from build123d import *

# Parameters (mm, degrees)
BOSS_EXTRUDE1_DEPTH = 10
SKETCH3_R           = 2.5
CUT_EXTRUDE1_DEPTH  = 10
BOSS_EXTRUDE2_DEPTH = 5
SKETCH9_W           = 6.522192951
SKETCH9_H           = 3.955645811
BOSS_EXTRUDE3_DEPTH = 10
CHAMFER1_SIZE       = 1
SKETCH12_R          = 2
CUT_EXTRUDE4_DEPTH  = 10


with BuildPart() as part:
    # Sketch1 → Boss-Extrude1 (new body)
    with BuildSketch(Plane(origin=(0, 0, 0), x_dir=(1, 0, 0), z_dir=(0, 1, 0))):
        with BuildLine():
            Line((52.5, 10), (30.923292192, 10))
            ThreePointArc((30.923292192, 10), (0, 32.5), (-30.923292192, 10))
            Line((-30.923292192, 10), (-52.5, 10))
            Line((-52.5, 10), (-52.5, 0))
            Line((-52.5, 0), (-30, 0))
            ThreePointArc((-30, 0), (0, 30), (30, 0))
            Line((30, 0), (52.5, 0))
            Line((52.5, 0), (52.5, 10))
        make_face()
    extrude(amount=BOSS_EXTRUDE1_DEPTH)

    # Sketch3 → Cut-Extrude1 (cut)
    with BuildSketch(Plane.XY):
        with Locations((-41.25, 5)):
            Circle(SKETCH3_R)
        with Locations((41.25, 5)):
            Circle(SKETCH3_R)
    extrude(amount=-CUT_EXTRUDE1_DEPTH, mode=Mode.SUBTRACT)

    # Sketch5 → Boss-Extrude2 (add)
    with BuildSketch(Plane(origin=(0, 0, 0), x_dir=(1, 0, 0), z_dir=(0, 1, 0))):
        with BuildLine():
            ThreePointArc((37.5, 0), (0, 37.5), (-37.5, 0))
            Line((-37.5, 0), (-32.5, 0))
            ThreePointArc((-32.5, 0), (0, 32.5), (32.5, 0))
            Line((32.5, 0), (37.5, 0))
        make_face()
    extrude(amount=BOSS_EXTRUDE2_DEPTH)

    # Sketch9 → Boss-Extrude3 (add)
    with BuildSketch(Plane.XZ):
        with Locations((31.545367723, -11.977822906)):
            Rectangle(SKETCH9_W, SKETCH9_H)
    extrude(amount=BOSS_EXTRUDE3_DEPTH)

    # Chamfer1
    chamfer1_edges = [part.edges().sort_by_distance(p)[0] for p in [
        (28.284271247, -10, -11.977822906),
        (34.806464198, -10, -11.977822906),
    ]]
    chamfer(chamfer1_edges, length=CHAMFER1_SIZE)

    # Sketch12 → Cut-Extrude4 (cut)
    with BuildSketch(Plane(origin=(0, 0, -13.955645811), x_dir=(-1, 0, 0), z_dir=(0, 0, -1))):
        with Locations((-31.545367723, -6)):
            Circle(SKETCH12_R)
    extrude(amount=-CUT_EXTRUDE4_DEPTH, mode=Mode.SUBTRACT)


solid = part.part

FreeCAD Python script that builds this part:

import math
import FreeCAD as App
import Part
import Sketcher

V = App.Vector


def edges_at(feature, points):
    """Names of the edges that pass closest to the given points."""
    edges = feature.Shape.Edges
    near = lambda p: min(range(len(edges)), key=lambda i: edges[i].distToShape(Part.Vertex(*p))[0])
    return sorted({f"Edge{near(p) + 1}" for p in points})


def add_polygon(sketch, points):
    """Adds a closed chain of lines whose ends are joined by coincident constraints."""
    first, n = sketch.GeometryCount, len(points)
    for a, b in zip(points, points[1:] + points[:1]):
        sketch.addGeometry(Part.LineSegment(App.Vector(*a, 0), App.Vector(*b, 0)), False)
    for i in range(n):
        sketch.addConstraint(Sketcher.Constraint("Coincident", first + i, 2, first + (i + 1) % n, 1))

doc = App.newDocument("Part")
body = doc.addObject("PartDesign::Body", "Body")

# Sketch on XZ plane
sketch1 = body.newObject("Sketcher::SketchObject", "Sketch")
sketch1.AttachmentSupport = (doc.getObject("XZ_Plane"), [""])
sketch1.MapMode = "FlatFace"
sketch1.addGeometry(Part.LineSegment(V(52, -10, 0), V(31, -10, 0)), False)
sketch1.addGeometry(Part.ArcOfCircle(Part.Circle(V(0, 0, 0), V(0, 0, 1), 32), math.radians(-162), math.radians(-18)), False)
sketch1.addGeometry(Part.LineSegment(V(-31, -10, 0), V(-52, -10, 0)), False)
sketch1.addGeometry(Part.LineSegment(V(-52, -10, 0), V(-52, 0, 0)), False)
sketch1.addGeometry(Part.LineSegment(V(-52, 0, 0), V(-30, 0, 0)), False)
sketch1.addGeometry(Part.ArcOfCircle(Part.Circle(V(0, 0, 0), V(0, 0, 1), 30), math.radians(180), math.radians(360)), False)
sketch1.addGeometry(Part.LineSegment(V(30, 0, 0), V(52, 0, 0)), False)
sketch1.addGeometry(Part.LineSegment(V(52, 0, 0), V(52, -10, 0)), False)
sketch1.addConstraint(Sketcher.Constraint("Coincident", 0, 2, 1, 2))
sketch1.addConstraint(Sketcher.Constraint("Coincident", 1, 1, 2, 1))
sketch1.addConstraint(Sketcher.Constraint("Coincident", 2, 2, 3, 1))
sketch1.addConstraint(Sketcher.Constraint("Coincident", 3, 2, 4, 1))
sketch1.addConstraint(Sketcher.Constraint("Coincident", 4, 2, 5, 1))
sketch1.addConstraint(Sketcher.Constraint("Coincident", 5, 2, 6, 1))
sketch1.addConstraint(Sketcher.Constraint("Coincident", 6, 2, 7, 1))
sketch1.addConstraint(Sketcher.Constraint("Coincident", 7, 2, 0, 1))
sketch1.addConstraint(Sketcher.Constraint("Horizontal", 0))
sketch1.addConstraint(Sketcher.Constraint("Horizontal", 2))
sketch1.addConstraint(Sketcher.Constraint("Vertical", 3))
sketch1.addConstraint(Sketcher.Constraint("Horizontal", 4))
sketch1.addConstraint(Sketcher.Constraint("Horizontal", 6))
sketch1.addConstraint(Sketcher.Constraint("Vertical", 7))
sketch1.addConstraint(Sketcher.Constraint("Coincident", 1, 3, -1, 1))
sketch1.addConstraint(Sketcher.Constraint("Coincident", 5, 3, -1, 1))
sketch1.addConstraint(Sketcher.Constraint("Symmetric", 3, 2, 6, 2, -1, 1))
sketch1.addConstraint(Sketcher.Constraint("PointOnObject", 3, 2, -1))
sketch1.addConstraint(Sketcher.Constraint("Horizontal", 0, 2, 1, 1))
sketch1.addConstraint(Sketcher.Constraint("Radius", 5, 30.0))
sketch1.addConstraint(Sketcher.Constraint("Radius", 1, 32.5))
sketch1.addConstraint(Sketcher.Constraint("DistanceY", 3, 1, 3, 2, 10.0))
sketch1.addConstraint(Sketcher.Constraint("DistanceX", 4, 1, 4, 2, 22.5))
pad1 = body.newObject("PartDesign::Pad", "Pad")
pad1.Profile = sketch1
pad1.Length = 10
pad1.Reversed = True

# Sketch on XY plane
sketch2 = body.newObject("Sketcher::SketchObject", "Sketch001")
sketch2.AttachmentSupport = (doc.getObject("XY_Plane"), [""])
sketch2.MapMode = "FlatFace"
sketch2.addGeometry(Part.Circle(V(-41.2, 5, 0), V(0, 0, 1), 2.5), False)
sketch2.addGeometry(Part.Circle(V(41.2, 5, 0), V(0, 0, 1), 2.5), False)
sketch2.addConstraint(Sketcher.Constraint("Equal", 0, 1))
sketch2.addConstraint(Sketcher.Constraint("Symmetric", 0, 3, 1, 3, -2))
sketch2.addConstraint(Sketcher.Constraint("Diameter", 0, 5.0))
sketch2.addConstraint(Sketcher.Constraint("DistanceY", -1, 1, 0, 3, 5.0))
sketch2.addConstraint(Sketcher.Constraint("DistanceX", 0, 3, 1, 3, 82.5))
pocket1 = body.newObject("PartDesign::Pocket", "Pocket")
pocket1.Profile = sketch2
pocket1.Length = 10

# Sketch on XZ plane
sketch3 = body.newObject("Sketcher::SketchObject", "Sketch002")
sketch3.AttachmentSupport = (doc.getObject("XZ_Plane"), [""])
sketch3.MapMode = "FlatFace"
sketch3.addGeometry(Part.ArcOfCircle(Part.Circle(V(0, 0, 0), V(0, 0, 1), 38), math.radians(180), math.radians(360)), False)
sketch3.addGeometry(Part.LineSegment(V(-38, 0, 0), V(-32, 0, 0)), False)
sketch3.addGeometry(Part.ArcOfCircle(Part.Circle(V(0, 0, 0), V(0, 0, 1), 32), math.radians(180), math.radians(360)), False)
sketch3.addGeometry(Part.LineSegment(V(32, 0, 0), V(38, 0, 0)), False)
sketch3.addConstraint(Sketcher.Constraint("Coincident", 0, 1, 1, 1))
sketch3.addConstraint(Sketcher.Constraint("Coincident", 1, 2, 2, 1))
sketch3.addConstraint(Sketcher.Constraint("Coincident", 2, 2, 3, 1))
sketch3.addConstraint(Sketcher.Constraint("Coincident", 3, 2, 0, 2))
sketch3.addConstraint(Sketcher.Constraint("Horizontal", 1))
sketch3.addConstraint(Sketcher.Constraint("Horizontal", 3))
sketch3.addConstraint(Sketcher.Constraint("Coincident", 0, 3, -1, 1))
sketch3.addConstraint(Sketcher.Constraint("Coincident", 2, 3, -1, 1))
sketch3.addConstraint(Sketcher.Constraint("PointOnObject", 0, 1, -1))
sketch3.addConstraint(Sketcher.Constraint("PointOnObject", 2, 2, -1))
sketch3.addConstraint(Sketcher.Constraint("Radius", 0, 37.5))
sketch3.addConstraint(Sketcher.Constraint("Radius", 2, 32.5))
pad2 = body.newObject("PartDesign::Pad", "Pad001")
pad2.Profile = sketch3
pad2.Length = 5
pad2.Reversed = True

# Sketch on XZ plane
sketch4 = body.newObject("Sketcher::SketchObject", "Sketch003")
sketch4.AttachmentSupport = (doc.getObject("XZ_Plane"), [""])
sketch4.MapMode = "FlatFace"
add_polygon(sketch4, [(28.3, -10), (28.3, -14), (34.8, -14), (34.8, -10)])  # lines 0-3
sketch4.addConstraint(Sketcher.Constraint("Vertical", 0))
sketch4.addConstraint(Sketcher.Constraint("Horizontal", 1))
sketch4.addConstraint(Sketcher.Constraint("Vertical", 2))
sketch4.addConstraint(Sketcher.Constraint("Horizontal", 3))
sketch4.addConstraint(Sketcher.Constraint("DistanceY", 2, 2, -1, 1, 10.0))
sketch4.addConstraint(Sketcher.Constraint("DistanceX", 1, 1, 1, 2, 6.522193))
sketch4.addConstraint(Sketcher.Constraint("DistanceY", 0, 2, 0, 1, 3.955646))
sketch4.addConstraint(Sketcher.Constraint("DistanceX", -1, 1, 0, 2, 28.284271))
pad3 = body.newObject("PartDesign::Pad", "Pad002")
pad3.Profile = sketch4
pad3.Length = 10
doc.recompute()

chamfer = body.newObject("PartDesign::Chamfer", "Chamfer")
chamfer.Base = (pad3, edges_at(pad3, [(28.284, -10, -11.978), (34.806, -10, -11.978)]))
chamfer.Size = 1

# Sketch on XY plane
sketch5 = body.newObject("Sketcher::SketchObject", "Sketch004")
sketch5.AttachmentSupport = (doc.getObject("XY_Plane"), [""])
sketch5.MapMode = "FlatFace"
sketch5.AttachmentOffset = App.Placement(V(0, 0, -13.955646), App.Rotation())
sketch5.addGeometry(Part.Circle(V(31.5, -6, 0), V(0, 0, 1), 2), False)
sketch5.addConstraint(Sketcher.Constraint("Diameter", 0, 4.0))
sketch5.addConstraint(Sketcher.Constraint("DistanceY", 0, 3, -1, 1, 6.0))
sketch5.addConstraint(Sketcher.Constraint("DistanceX", -1, 1, 0, 3, 31.545368))
pocket2 = body.newObject("PartDesign::Pocket", "Pocket001")
pocket2.Profile = sketch5
pocket2.Length = 10
pocket2.Reversed = True

doc.recompute()
